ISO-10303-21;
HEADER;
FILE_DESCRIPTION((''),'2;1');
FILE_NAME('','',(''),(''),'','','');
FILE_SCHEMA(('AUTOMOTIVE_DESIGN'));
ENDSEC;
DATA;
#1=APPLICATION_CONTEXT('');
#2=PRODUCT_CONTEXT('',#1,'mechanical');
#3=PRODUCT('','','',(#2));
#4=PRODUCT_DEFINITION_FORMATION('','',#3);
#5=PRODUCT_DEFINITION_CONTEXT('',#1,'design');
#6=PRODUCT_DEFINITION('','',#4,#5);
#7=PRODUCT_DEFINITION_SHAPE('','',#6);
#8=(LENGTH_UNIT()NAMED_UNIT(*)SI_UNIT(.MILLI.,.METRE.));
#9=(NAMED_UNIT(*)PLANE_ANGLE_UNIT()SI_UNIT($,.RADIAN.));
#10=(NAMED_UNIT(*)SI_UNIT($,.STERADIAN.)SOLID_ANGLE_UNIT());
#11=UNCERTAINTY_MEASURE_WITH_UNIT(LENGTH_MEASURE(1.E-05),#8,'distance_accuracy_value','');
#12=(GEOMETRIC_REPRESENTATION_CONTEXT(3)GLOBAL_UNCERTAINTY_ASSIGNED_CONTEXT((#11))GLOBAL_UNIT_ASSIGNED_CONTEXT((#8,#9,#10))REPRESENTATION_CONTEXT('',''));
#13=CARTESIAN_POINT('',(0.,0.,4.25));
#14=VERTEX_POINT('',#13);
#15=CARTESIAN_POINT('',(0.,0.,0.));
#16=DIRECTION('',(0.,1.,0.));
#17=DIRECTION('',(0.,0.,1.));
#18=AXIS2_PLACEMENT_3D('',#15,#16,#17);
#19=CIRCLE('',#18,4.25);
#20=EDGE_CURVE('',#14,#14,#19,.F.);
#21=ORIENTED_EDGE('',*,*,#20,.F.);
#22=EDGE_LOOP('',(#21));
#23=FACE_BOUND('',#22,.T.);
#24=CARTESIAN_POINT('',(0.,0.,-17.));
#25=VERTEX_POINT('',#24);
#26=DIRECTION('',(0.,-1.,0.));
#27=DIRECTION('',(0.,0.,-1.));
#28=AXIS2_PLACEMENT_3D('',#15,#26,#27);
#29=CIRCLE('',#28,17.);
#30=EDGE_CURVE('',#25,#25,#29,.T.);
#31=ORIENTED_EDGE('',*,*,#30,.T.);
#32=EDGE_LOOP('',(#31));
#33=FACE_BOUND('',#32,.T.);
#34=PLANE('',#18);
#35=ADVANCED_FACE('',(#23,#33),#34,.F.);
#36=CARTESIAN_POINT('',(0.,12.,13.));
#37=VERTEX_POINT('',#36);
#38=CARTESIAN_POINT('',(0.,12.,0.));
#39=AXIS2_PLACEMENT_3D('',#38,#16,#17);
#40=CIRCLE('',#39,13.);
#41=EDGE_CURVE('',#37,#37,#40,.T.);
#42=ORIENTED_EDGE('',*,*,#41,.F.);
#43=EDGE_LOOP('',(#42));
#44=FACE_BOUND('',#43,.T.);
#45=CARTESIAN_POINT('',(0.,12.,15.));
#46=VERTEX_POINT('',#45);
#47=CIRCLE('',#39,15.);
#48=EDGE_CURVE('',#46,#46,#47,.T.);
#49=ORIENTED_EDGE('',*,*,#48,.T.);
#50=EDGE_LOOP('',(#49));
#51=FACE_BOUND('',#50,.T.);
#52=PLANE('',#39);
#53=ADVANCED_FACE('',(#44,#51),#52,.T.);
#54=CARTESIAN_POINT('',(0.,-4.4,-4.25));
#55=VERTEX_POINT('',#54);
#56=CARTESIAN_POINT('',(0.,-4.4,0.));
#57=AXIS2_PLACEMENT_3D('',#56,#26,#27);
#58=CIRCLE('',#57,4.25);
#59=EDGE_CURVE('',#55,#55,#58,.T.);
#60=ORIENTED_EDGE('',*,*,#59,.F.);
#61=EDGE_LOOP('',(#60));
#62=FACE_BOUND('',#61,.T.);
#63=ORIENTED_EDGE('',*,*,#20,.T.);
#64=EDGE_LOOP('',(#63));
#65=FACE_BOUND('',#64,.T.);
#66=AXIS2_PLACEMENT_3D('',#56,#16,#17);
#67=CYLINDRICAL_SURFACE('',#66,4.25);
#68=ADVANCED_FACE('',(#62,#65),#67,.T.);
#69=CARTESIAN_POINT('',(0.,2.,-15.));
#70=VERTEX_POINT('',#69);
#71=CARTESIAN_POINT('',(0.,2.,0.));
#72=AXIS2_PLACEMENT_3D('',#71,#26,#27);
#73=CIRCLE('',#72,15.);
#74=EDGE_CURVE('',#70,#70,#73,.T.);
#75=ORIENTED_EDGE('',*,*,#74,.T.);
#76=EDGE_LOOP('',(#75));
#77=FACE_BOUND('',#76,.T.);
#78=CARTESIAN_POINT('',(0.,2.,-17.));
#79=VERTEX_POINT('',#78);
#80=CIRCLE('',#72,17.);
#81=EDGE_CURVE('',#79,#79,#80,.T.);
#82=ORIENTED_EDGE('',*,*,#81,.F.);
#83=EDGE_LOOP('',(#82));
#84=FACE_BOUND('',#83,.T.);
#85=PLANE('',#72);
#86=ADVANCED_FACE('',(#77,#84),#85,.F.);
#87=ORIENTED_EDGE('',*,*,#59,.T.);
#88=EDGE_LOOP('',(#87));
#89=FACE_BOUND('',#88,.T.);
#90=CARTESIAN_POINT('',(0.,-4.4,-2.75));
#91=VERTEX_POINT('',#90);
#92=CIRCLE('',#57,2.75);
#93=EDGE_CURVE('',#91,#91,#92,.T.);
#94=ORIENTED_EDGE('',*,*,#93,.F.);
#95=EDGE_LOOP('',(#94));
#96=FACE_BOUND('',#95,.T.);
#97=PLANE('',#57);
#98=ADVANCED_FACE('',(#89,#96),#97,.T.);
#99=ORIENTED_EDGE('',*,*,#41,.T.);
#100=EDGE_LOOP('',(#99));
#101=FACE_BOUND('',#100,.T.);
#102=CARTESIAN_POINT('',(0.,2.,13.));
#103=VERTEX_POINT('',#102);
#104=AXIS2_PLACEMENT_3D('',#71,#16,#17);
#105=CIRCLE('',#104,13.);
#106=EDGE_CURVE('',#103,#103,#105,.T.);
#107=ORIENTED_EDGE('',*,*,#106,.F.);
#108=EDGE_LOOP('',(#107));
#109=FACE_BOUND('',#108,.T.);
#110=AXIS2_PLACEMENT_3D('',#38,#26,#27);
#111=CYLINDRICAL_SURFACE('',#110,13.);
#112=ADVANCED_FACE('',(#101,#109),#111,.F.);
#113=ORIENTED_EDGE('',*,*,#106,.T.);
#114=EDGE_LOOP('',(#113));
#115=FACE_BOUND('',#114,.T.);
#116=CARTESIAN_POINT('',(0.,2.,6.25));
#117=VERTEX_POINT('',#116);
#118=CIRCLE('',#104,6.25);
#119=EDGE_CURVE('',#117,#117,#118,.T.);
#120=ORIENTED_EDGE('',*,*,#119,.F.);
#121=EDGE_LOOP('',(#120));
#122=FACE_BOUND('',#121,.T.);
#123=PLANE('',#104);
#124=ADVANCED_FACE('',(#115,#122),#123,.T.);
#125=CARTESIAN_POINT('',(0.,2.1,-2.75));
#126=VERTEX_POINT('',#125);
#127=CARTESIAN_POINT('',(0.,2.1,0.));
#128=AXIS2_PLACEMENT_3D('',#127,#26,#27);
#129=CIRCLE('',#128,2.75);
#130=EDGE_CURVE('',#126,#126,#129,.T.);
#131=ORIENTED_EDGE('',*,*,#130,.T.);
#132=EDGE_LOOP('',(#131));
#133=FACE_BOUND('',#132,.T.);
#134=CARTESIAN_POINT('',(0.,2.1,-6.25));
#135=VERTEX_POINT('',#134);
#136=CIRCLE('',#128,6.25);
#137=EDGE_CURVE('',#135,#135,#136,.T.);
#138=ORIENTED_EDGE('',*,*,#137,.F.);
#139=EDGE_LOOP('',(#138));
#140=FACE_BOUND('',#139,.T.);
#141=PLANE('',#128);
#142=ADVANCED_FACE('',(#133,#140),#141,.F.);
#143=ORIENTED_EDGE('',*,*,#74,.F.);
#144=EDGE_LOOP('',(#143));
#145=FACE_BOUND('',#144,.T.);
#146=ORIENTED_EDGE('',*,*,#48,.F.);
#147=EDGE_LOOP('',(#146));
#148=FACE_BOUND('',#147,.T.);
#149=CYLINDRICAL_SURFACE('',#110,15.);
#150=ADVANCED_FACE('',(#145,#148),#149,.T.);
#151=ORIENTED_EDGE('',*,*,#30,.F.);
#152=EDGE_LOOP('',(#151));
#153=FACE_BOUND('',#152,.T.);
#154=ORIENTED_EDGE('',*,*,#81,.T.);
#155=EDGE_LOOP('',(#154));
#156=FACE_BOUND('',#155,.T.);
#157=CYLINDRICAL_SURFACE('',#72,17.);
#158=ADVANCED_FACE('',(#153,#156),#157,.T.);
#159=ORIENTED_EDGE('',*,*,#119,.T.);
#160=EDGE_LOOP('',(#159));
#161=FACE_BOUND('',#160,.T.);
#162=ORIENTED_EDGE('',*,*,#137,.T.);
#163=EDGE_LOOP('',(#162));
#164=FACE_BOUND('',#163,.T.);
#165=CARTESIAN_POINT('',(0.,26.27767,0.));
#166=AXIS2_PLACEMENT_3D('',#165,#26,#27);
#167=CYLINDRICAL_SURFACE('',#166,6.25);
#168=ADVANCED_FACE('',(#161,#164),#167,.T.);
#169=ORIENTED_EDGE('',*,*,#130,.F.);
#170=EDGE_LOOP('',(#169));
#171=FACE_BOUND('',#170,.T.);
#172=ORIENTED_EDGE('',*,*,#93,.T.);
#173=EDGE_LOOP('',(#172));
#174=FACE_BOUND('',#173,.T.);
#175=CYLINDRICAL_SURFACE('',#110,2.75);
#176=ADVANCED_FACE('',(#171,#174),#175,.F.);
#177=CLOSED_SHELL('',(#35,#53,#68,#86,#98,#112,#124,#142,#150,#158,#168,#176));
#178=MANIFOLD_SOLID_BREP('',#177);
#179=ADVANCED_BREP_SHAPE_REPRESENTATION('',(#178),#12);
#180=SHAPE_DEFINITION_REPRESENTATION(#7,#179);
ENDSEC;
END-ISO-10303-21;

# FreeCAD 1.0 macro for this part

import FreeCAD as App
import Part
import Sketcher
Q = App.Units.Quantity


def faces_at(feature, points):
    """Names of the faces that lie closest to the given points."""
    faces = feature.Shape.Faces
    near = lambda p: min(range(len(faces)), key=lambda i: faces[i].distToShape(Part.Vertex(*p))[0])
    return sorted({f"Face{near(p) + 1}" for p in points})

doc = App.newDocument("Part")
body = doc.addObject("PartDesign::Body", "Body")

sketch1 = doc.addObject("Sketcher::SketchObject", "Sketch")
body.addObject(sketch1)
sketch1.AttachmentSupport = (doc.XZ_Plane, [""])
sketch1.MapMode = "FlatFace"
sketch1.addGeometry(Part.Circle(App.Vector(0, 0, 0), App.Vector(0, 0, 1), 15), False)
sketch1.addConstraint(Sketcher.Constraint("Coincident", 0, 3, -1, 1))
sketch1.addConstraint(Sketcher.Constraint("Diameter", 0, Q("30 mm")))
pad1 = doc.addObject("PartDesign::Pad", "Pad")
body.addObject(pad1)
pad1.Profile = sketch1
pad1.Length = 12
pad1.Reversed = True
doc.recompute()

thickness = doc.addObject("PartDesign::Thickness", "Thickness")
body.addObject(thickness)
thickness.Base = (pad1, faces_at(pad1, [(0, 12, 0)]))
thickness.Value = 2
thickness.Reversed = True
thickness.Join = "Intersection"

sketch2 = doc.addObject("Sketcher::SketchObject", "Sketch001")
body.addObject(sketch2)
sketch2.AttachmentSupport = (doc.XZ_Plane, [""])
sketch2.MapMode = "FlatFace"
sketch2.addGeometry(Part.Circle(App.Vector(0, 0, 0), App.Vector(0, 0, 1), 2.8), False)
sketch2.addConstraint(Sketcher.Constraint("Coincident", 0, 3, -1, 1))
sketch2.addConstraint(Sketcher.Constraint("Diameter", 0, Q("5.5 mm")))
pocket1 = doc.addObject("PartDesign::Pocket", "Pocket")
body.addObject(pocket1)
pocket1.Profile = sketch2
pocket1.Type = "ThroughAll"

sketch3 = doc.addObject("Sketcher::SketchObject", "Sketch002")
body.addObject(sketch3)
sketch3.AttachmentSupport = (doc.XZ_Plane, [""])
sketch3.MapMode = "FlatFace"
sketch3.addGeometry(Part.Circle(App.Vector(0, 0, 0), App.Vector(0, 0, 1), 17), False)
sketch3.addGeometry(Part.Circle(App.Vector(0, 0, 0), App.Vector(0, 0, 1), 15), False)
sketch3.addConstraint(Sketcher.Constraint("Coincident", 0, 3, -1, 1))
sketch3.addConstraint(Sketcher.Constraint("Coincident", 1, 3, -1, 1))
sketch3.addConstraint(Sketcher.Constraint("Diameter", 0, Q("34 mm")))
sketch3.addConstraint(Sketcher.Constraint("Diameter", 1, Q("30 mm")))
pad2 = doc.addObject("PartDesign::Pad", "Pad001")
body.addObject(pad2)
pad2.Profile = sketch3
pad2.Length = 2
pad2.Reversed = True

sketch4 = doc.addObject("Sketcher::SketchObject", "Sketch003")
body.addObject(sketch4)
sketch4.AttachmentSupport = (doc.XZ_Plane, [""])
sketch4.MapMode = "FlatFace"
sketch4.AttachmentOffset = App.Placement(App.Vector(0, 0, 4.4), App.Rotation())
sketch4.addGeometry(Part.Circle(App.Vector(0, 0, 0), App.Vector(0, 0, 1), 4.2), False)
sketch4.addGeometry(Part.Circle(App.Vector(0, 0, 0), App.Vector(0, 0, 1), 2.8), False)
sketch4.addConstraint(Sketcher.Constraint("Coincident", 0, 3, -1, 1))
sketch4.addConstraint(Sketcher.Constraint("Coincident", 1, 3, -1, 1))
sketch4.addConstraint(Sketcher.Constraint("Diameter", 0, Q("8.5 mm")))
sketch4.addConstraint(Sketcher.Constraint("Diameter", 1, Q("5.5 mm")))
pad3 = doc.addObject("PartDesign::Pad", "Pad002")
body.addObject(pad3)
pad3.Profile = sketch4
pad3.Length = 4.4
pad3.Reversed = True

sketch5 = doc.addObject("Sketcher::SketchObject", "Sketch004")
body.addObject(sketch5)
sketch5.AttachmentSupport = (doc.XZ_Plane, [""])
sketch5.MapMode = "FlatFace"
sketch5.AttachmentOffset = App.Placement(App.Vector(0, 0, -2), App.Rotation())
sketch5.addGeometry(Part.Circle(App.Vector(0, 0, 0), App.Vector(0, 0, 1), 6.2), False)
sketch5.addGeometry(Part.Circle(App.Vector(0, 0, 0), App.Vector(0, 0, 1), 2.8), False)
sketch5.addConstraint(Sketcher.Constraint("Coincident", 0, 3, -1, 1))
sketch5.addConstraint(Sketcher.Constraint("Coincident", 1, 3, -1, 1))
sketch5.addConstraint(Sketcher.Constraint("Diameter", 0, Q("12.5 mm")))
sketch5.addConstraint(Sketcher.Constraint("Diameter", 1, Q("5.5 mm")))
pad4 = doc.addObject("PartDesign::Pad", "Pad003")
body.addObject(pad4)
pad4.Profile = sketch5
pad4.Length = 0.1
pad4.Reversed = True

doc.recompute()
